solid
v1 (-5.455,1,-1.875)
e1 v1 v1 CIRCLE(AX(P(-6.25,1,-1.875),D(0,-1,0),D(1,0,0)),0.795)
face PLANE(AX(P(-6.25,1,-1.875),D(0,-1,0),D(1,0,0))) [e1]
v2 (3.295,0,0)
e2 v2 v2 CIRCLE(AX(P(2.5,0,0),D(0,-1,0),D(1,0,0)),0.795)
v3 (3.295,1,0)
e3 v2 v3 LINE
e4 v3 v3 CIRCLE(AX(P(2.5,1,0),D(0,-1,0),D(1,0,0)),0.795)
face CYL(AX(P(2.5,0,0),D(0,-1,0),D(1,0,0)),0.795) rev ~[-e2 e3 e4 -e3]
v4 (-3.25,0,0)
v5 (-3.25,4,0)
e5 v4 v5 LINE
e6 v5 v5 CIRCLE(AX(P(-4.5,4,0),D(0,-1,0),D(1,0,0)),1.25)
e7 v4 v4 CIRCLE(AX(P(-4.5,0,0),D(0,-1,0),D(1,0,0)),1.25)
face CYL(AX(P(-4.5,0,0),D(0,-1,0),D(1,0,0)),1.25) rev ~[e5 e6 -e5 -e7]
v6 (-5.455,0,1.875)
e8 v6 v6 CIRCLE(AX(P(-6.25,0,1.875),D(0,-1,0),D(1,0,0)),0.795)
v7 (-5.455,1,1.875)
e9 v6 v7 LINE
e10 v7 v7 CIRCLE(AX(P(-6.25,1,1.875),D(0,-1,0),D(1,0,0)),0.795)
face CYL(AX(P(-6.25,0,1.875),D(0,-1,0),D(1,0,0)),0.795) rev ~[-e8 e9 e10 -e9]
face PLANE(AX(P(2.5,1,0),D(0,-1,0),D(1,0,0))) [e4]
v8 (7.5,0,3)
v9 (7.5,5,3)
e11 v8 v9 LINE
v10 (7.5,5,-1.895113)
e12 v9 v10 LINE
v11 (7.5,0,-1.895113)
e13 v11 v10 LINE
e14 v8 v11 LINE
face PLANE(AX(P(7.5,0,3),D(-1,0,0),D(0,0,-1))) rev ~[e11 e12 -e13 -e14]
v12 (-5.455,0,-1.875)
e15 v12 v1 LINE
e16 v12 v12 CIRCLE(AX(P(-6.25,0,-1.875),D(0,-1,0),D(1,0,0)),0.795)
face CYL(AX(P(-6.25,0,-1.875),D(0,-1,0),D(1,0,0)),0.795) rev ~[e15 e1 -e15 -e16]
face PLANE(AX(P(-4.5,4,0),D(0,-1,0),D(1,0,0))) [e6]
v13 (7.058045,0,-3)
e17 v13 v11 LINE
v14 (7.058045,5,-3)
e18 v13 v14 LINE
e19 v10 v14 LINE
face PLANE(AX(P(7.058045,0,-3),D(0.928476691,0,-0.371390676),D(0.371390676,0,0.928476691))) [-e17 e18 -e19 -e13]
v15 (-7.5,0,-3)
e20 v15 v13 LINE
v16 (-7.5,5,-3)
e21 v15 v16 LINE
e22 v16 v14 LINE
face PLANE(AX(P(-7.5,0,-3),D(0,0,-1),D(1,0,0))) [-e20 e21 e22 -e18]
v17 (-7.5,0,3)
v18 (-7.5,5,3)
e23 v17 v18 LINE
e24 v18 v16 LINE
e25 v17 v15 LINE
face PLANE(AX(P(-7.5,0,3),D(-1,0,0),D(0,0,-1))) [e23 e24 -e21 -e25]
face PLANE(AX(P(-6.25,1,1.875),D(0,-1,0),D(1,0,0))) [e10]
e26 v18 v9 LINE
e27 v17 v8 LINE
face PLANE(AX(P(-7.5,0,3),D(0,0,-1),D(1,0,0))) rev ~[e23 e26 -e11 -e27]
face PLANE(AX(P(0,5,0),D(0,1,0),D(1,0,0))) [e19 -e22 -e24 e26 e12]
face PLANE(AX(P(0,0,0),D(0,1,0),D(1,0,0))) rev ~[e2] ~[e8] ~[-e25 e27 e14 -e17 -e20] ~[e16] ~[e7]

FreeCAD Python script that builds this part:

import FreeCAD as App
import Part
import Sketcher
Q = App.Units.Quantity


def add_polygon(sketch, points):
    """Adds a closed chain of lines whose ends are joined by coincident constraints."""
    first, n = sketch.GeometryCount, len(points)
    for a, b in zip(points, points[1:] + points[:1]):
        sketch.addGeometry(Part.LineSegment(App.Vector(*a, 0), App.Vector(*b, 0)), False)
    for i in range(n):
        sketch.addConstraint(Sketcher.Constraint("Coincident", first + i, 2, first + (i + 1) % n, 1))

doc = App.newDocument("Part")
body = doc.addObject("PartDesign::Body", "Body")

sketch1 = body.newObject("Sketcher::SketchObject", "Sketch")
sketch1.AttachmentSupport = (doc.getObject("XZ_Plane"), [""])
sketch1.MapMode = "FlatFace"
add_polygon(sketch1, [(-8, -3), (-8, 3), (8, 3), (8, -3)])
sketch1.addConstraint([
    Sketcher.Constraint("Vertical", 0),
    Sketcher.Constraint("Horizontal", 1),
    Sketcher.Constraint("Vertical", 2),
    Sketcher.Constraint("Horizontal", 3),
    Sketcher.Constraint("Symmetric", 0, 2, 2, 2, -1, 1),
    Sketcher.Constraint("DistanceX", 1, 1, 1, 2, Q("15 mm")),
    Sketcher.Constraint("DistanceY", 0, 1, 0, 2, Q("6 mm")),
])
pad1 = body.newObject("PartDesign::Pad", "Pad")
pad1.Profile = sketch1
pad1.Length = 5
pad1.Reversed = True

sketch2 = body.newObject("Sketcher::SketchObject", "Sketch001")
sketch2.AttachmentSupport = (doc.getObject("XZ_Plane"), [""])
sketch2.MapMode = "FlatFace"
sketch2.addGeometry(Part.Circle(App.Vector(-4.5, 0, 0), App.Vector(0, 0, 1), 1.2), False)
sketch2.addConstraint([
    Sketcher.Constraint("PointOnObject", 0, 3, -1),
    Sketcher.Constraint("Diameter", 0, Q("2.5 mm")),
    Sketcher.Constraint("DistanceX", 0, 3, -1, 1, Q("4.5 mm")),
])
pocket1 = body.newObject("PartDesign::Pocket", "Pocket")
pocket1.Profile = sketch2
pocket1.Length = 4

sketch3 = body.newObject("Sketcher::SketchObject", "Sketch002")
sketch3.AttachmentSupport = (doc.getObject("XZ_Plane"), [""])
sketch3.MapMode = "FlatFace"
sketch3.addGeometry([
    Part.Circle(App.Vector(-6.2, -1.9, 0), App.Vector(0, 0, 1), 0.8),
    Part.Circle(App.Vector(-6.2, 1.9, 0), App.Vector(0, 0, 1), 0.8),
    Part.Circle(App.Vector(2.5, 0, 0), App.Vector(0, 0, 1), 0.8),
], False)
sketch3.addConstraint([
    Sketcher.Constraint("Equal", 0, 1),
    Sketcher.Constraint("Equal", 1, 2),
    Sketcher.Constraint("Symmetric", 0, 3, 1, 3, -1),
    Sketcher.Constraint("PointOnObject", 2, 3, -1),
    Sketcher.Constraint("Diameter", 0, Q("1.59 mm")),
    Sketcher.Constraint("DistanceX", -1, 1, 2, 3, Q("2.5 mm")),
    Sketcher.Constraint("DistanceX", 0, 3, -1, 1, Q("6.25 mm")),
    Sketcher.Constraint("DistanceY", 0, 3, 1, 3, Q("3.75 mm")),
])
pocket2 = body.newObject("PartDesign::Pocket", "Pocket001")
pocket2.Profile = sketch3
pocket2.Length = 1

sketch4 = body.newObject("Sketcher::SketchObject", "Sketch003")
sketch4.AttachmentSupport = (doc.getObject("XZ_Plane"), [""])
sketch4.MapMode = "FlatFace"
add_polygon(sketch4, [(7.5, -1.9), (7.06, -3), (7.5, -3)])
sketch4.addConstraint([
    Sketcher.Constraint("Horizontal", 1),
    Sketcher.Constraint("Vertical", 2),
    Sketcher.Constraint("DistanceY", 0, 2, -1, 1, Q("3 mm")),
    Sketcher.Constraint("DistanceX", -1, 1, 1, 2, Q("7.5 mm")),
    Sketcher.Constraint("Distance", 0, Q("1.19 mm")),
    Sketcher.Constraint("DistanceX", 1, 1, 1, 2, Q("0.441955 mm")),
])
pocket3 = body.newObject("PartDesign::Pocket", "Pocket002")
pocket3.Profile = sketch4
pocket3.Type = "ThroughAll"

doc.recompute()
